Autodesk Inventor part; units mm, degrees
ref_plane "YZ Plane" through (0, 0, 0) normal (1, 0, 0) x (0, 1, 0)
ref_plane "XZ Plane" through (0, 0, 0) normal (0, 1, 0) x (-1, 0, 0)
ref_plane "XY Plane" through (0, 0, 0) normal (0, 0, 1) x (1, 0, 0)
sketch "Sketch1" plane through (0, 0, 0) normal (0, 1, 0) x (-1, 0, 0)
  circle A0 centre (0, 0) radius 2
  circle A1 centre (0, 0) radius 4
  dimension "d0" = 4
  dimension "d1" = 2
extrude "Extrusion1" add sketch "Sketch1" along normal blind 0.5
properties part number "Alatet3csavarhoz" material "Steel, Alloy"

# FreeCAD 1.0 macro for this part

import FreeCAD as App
import Part
import Sketcher
Q = App.Units.Quantity

doc = App.newDocument("Part")
body = doc.addObject("PartDesign::Body", "Body")

sketch1 = body.newObject("Sketcher::SketchObject", "Sketch")
sketch1.AttachmentSupport = (doc.getObject("XZ_Plane"), [""])
sketch1.MapMode = "FlatFace"
sketch1.addGeometry([
    Part.Circle(App.Vector(0, 0, 0), App.Vector(0, 0, 1), 4),
    Part.Circle(App.Vector(0, 0, 0), App.Vector(0, 0, 1), 2),
], False)
sketch1.addConstraint([
    Sketcher.Constraint("Coincident", 0, 3, -1, 1),
    Sketcher.Constraint("Coincident", 1, 3, -1, 1),
    Sketcher.Constraint("Diameter", 0, Q("8 mm")),
    Sketcher.Constraint("Diameter", 1, Q("4 mm")),
])
pad1 = body.newObject("PartDesign::Pad", "Pad")
pad1.Profile = sketch1
pad1.Length = 0.5
pad1.Reversed = True

doc.recompute()
